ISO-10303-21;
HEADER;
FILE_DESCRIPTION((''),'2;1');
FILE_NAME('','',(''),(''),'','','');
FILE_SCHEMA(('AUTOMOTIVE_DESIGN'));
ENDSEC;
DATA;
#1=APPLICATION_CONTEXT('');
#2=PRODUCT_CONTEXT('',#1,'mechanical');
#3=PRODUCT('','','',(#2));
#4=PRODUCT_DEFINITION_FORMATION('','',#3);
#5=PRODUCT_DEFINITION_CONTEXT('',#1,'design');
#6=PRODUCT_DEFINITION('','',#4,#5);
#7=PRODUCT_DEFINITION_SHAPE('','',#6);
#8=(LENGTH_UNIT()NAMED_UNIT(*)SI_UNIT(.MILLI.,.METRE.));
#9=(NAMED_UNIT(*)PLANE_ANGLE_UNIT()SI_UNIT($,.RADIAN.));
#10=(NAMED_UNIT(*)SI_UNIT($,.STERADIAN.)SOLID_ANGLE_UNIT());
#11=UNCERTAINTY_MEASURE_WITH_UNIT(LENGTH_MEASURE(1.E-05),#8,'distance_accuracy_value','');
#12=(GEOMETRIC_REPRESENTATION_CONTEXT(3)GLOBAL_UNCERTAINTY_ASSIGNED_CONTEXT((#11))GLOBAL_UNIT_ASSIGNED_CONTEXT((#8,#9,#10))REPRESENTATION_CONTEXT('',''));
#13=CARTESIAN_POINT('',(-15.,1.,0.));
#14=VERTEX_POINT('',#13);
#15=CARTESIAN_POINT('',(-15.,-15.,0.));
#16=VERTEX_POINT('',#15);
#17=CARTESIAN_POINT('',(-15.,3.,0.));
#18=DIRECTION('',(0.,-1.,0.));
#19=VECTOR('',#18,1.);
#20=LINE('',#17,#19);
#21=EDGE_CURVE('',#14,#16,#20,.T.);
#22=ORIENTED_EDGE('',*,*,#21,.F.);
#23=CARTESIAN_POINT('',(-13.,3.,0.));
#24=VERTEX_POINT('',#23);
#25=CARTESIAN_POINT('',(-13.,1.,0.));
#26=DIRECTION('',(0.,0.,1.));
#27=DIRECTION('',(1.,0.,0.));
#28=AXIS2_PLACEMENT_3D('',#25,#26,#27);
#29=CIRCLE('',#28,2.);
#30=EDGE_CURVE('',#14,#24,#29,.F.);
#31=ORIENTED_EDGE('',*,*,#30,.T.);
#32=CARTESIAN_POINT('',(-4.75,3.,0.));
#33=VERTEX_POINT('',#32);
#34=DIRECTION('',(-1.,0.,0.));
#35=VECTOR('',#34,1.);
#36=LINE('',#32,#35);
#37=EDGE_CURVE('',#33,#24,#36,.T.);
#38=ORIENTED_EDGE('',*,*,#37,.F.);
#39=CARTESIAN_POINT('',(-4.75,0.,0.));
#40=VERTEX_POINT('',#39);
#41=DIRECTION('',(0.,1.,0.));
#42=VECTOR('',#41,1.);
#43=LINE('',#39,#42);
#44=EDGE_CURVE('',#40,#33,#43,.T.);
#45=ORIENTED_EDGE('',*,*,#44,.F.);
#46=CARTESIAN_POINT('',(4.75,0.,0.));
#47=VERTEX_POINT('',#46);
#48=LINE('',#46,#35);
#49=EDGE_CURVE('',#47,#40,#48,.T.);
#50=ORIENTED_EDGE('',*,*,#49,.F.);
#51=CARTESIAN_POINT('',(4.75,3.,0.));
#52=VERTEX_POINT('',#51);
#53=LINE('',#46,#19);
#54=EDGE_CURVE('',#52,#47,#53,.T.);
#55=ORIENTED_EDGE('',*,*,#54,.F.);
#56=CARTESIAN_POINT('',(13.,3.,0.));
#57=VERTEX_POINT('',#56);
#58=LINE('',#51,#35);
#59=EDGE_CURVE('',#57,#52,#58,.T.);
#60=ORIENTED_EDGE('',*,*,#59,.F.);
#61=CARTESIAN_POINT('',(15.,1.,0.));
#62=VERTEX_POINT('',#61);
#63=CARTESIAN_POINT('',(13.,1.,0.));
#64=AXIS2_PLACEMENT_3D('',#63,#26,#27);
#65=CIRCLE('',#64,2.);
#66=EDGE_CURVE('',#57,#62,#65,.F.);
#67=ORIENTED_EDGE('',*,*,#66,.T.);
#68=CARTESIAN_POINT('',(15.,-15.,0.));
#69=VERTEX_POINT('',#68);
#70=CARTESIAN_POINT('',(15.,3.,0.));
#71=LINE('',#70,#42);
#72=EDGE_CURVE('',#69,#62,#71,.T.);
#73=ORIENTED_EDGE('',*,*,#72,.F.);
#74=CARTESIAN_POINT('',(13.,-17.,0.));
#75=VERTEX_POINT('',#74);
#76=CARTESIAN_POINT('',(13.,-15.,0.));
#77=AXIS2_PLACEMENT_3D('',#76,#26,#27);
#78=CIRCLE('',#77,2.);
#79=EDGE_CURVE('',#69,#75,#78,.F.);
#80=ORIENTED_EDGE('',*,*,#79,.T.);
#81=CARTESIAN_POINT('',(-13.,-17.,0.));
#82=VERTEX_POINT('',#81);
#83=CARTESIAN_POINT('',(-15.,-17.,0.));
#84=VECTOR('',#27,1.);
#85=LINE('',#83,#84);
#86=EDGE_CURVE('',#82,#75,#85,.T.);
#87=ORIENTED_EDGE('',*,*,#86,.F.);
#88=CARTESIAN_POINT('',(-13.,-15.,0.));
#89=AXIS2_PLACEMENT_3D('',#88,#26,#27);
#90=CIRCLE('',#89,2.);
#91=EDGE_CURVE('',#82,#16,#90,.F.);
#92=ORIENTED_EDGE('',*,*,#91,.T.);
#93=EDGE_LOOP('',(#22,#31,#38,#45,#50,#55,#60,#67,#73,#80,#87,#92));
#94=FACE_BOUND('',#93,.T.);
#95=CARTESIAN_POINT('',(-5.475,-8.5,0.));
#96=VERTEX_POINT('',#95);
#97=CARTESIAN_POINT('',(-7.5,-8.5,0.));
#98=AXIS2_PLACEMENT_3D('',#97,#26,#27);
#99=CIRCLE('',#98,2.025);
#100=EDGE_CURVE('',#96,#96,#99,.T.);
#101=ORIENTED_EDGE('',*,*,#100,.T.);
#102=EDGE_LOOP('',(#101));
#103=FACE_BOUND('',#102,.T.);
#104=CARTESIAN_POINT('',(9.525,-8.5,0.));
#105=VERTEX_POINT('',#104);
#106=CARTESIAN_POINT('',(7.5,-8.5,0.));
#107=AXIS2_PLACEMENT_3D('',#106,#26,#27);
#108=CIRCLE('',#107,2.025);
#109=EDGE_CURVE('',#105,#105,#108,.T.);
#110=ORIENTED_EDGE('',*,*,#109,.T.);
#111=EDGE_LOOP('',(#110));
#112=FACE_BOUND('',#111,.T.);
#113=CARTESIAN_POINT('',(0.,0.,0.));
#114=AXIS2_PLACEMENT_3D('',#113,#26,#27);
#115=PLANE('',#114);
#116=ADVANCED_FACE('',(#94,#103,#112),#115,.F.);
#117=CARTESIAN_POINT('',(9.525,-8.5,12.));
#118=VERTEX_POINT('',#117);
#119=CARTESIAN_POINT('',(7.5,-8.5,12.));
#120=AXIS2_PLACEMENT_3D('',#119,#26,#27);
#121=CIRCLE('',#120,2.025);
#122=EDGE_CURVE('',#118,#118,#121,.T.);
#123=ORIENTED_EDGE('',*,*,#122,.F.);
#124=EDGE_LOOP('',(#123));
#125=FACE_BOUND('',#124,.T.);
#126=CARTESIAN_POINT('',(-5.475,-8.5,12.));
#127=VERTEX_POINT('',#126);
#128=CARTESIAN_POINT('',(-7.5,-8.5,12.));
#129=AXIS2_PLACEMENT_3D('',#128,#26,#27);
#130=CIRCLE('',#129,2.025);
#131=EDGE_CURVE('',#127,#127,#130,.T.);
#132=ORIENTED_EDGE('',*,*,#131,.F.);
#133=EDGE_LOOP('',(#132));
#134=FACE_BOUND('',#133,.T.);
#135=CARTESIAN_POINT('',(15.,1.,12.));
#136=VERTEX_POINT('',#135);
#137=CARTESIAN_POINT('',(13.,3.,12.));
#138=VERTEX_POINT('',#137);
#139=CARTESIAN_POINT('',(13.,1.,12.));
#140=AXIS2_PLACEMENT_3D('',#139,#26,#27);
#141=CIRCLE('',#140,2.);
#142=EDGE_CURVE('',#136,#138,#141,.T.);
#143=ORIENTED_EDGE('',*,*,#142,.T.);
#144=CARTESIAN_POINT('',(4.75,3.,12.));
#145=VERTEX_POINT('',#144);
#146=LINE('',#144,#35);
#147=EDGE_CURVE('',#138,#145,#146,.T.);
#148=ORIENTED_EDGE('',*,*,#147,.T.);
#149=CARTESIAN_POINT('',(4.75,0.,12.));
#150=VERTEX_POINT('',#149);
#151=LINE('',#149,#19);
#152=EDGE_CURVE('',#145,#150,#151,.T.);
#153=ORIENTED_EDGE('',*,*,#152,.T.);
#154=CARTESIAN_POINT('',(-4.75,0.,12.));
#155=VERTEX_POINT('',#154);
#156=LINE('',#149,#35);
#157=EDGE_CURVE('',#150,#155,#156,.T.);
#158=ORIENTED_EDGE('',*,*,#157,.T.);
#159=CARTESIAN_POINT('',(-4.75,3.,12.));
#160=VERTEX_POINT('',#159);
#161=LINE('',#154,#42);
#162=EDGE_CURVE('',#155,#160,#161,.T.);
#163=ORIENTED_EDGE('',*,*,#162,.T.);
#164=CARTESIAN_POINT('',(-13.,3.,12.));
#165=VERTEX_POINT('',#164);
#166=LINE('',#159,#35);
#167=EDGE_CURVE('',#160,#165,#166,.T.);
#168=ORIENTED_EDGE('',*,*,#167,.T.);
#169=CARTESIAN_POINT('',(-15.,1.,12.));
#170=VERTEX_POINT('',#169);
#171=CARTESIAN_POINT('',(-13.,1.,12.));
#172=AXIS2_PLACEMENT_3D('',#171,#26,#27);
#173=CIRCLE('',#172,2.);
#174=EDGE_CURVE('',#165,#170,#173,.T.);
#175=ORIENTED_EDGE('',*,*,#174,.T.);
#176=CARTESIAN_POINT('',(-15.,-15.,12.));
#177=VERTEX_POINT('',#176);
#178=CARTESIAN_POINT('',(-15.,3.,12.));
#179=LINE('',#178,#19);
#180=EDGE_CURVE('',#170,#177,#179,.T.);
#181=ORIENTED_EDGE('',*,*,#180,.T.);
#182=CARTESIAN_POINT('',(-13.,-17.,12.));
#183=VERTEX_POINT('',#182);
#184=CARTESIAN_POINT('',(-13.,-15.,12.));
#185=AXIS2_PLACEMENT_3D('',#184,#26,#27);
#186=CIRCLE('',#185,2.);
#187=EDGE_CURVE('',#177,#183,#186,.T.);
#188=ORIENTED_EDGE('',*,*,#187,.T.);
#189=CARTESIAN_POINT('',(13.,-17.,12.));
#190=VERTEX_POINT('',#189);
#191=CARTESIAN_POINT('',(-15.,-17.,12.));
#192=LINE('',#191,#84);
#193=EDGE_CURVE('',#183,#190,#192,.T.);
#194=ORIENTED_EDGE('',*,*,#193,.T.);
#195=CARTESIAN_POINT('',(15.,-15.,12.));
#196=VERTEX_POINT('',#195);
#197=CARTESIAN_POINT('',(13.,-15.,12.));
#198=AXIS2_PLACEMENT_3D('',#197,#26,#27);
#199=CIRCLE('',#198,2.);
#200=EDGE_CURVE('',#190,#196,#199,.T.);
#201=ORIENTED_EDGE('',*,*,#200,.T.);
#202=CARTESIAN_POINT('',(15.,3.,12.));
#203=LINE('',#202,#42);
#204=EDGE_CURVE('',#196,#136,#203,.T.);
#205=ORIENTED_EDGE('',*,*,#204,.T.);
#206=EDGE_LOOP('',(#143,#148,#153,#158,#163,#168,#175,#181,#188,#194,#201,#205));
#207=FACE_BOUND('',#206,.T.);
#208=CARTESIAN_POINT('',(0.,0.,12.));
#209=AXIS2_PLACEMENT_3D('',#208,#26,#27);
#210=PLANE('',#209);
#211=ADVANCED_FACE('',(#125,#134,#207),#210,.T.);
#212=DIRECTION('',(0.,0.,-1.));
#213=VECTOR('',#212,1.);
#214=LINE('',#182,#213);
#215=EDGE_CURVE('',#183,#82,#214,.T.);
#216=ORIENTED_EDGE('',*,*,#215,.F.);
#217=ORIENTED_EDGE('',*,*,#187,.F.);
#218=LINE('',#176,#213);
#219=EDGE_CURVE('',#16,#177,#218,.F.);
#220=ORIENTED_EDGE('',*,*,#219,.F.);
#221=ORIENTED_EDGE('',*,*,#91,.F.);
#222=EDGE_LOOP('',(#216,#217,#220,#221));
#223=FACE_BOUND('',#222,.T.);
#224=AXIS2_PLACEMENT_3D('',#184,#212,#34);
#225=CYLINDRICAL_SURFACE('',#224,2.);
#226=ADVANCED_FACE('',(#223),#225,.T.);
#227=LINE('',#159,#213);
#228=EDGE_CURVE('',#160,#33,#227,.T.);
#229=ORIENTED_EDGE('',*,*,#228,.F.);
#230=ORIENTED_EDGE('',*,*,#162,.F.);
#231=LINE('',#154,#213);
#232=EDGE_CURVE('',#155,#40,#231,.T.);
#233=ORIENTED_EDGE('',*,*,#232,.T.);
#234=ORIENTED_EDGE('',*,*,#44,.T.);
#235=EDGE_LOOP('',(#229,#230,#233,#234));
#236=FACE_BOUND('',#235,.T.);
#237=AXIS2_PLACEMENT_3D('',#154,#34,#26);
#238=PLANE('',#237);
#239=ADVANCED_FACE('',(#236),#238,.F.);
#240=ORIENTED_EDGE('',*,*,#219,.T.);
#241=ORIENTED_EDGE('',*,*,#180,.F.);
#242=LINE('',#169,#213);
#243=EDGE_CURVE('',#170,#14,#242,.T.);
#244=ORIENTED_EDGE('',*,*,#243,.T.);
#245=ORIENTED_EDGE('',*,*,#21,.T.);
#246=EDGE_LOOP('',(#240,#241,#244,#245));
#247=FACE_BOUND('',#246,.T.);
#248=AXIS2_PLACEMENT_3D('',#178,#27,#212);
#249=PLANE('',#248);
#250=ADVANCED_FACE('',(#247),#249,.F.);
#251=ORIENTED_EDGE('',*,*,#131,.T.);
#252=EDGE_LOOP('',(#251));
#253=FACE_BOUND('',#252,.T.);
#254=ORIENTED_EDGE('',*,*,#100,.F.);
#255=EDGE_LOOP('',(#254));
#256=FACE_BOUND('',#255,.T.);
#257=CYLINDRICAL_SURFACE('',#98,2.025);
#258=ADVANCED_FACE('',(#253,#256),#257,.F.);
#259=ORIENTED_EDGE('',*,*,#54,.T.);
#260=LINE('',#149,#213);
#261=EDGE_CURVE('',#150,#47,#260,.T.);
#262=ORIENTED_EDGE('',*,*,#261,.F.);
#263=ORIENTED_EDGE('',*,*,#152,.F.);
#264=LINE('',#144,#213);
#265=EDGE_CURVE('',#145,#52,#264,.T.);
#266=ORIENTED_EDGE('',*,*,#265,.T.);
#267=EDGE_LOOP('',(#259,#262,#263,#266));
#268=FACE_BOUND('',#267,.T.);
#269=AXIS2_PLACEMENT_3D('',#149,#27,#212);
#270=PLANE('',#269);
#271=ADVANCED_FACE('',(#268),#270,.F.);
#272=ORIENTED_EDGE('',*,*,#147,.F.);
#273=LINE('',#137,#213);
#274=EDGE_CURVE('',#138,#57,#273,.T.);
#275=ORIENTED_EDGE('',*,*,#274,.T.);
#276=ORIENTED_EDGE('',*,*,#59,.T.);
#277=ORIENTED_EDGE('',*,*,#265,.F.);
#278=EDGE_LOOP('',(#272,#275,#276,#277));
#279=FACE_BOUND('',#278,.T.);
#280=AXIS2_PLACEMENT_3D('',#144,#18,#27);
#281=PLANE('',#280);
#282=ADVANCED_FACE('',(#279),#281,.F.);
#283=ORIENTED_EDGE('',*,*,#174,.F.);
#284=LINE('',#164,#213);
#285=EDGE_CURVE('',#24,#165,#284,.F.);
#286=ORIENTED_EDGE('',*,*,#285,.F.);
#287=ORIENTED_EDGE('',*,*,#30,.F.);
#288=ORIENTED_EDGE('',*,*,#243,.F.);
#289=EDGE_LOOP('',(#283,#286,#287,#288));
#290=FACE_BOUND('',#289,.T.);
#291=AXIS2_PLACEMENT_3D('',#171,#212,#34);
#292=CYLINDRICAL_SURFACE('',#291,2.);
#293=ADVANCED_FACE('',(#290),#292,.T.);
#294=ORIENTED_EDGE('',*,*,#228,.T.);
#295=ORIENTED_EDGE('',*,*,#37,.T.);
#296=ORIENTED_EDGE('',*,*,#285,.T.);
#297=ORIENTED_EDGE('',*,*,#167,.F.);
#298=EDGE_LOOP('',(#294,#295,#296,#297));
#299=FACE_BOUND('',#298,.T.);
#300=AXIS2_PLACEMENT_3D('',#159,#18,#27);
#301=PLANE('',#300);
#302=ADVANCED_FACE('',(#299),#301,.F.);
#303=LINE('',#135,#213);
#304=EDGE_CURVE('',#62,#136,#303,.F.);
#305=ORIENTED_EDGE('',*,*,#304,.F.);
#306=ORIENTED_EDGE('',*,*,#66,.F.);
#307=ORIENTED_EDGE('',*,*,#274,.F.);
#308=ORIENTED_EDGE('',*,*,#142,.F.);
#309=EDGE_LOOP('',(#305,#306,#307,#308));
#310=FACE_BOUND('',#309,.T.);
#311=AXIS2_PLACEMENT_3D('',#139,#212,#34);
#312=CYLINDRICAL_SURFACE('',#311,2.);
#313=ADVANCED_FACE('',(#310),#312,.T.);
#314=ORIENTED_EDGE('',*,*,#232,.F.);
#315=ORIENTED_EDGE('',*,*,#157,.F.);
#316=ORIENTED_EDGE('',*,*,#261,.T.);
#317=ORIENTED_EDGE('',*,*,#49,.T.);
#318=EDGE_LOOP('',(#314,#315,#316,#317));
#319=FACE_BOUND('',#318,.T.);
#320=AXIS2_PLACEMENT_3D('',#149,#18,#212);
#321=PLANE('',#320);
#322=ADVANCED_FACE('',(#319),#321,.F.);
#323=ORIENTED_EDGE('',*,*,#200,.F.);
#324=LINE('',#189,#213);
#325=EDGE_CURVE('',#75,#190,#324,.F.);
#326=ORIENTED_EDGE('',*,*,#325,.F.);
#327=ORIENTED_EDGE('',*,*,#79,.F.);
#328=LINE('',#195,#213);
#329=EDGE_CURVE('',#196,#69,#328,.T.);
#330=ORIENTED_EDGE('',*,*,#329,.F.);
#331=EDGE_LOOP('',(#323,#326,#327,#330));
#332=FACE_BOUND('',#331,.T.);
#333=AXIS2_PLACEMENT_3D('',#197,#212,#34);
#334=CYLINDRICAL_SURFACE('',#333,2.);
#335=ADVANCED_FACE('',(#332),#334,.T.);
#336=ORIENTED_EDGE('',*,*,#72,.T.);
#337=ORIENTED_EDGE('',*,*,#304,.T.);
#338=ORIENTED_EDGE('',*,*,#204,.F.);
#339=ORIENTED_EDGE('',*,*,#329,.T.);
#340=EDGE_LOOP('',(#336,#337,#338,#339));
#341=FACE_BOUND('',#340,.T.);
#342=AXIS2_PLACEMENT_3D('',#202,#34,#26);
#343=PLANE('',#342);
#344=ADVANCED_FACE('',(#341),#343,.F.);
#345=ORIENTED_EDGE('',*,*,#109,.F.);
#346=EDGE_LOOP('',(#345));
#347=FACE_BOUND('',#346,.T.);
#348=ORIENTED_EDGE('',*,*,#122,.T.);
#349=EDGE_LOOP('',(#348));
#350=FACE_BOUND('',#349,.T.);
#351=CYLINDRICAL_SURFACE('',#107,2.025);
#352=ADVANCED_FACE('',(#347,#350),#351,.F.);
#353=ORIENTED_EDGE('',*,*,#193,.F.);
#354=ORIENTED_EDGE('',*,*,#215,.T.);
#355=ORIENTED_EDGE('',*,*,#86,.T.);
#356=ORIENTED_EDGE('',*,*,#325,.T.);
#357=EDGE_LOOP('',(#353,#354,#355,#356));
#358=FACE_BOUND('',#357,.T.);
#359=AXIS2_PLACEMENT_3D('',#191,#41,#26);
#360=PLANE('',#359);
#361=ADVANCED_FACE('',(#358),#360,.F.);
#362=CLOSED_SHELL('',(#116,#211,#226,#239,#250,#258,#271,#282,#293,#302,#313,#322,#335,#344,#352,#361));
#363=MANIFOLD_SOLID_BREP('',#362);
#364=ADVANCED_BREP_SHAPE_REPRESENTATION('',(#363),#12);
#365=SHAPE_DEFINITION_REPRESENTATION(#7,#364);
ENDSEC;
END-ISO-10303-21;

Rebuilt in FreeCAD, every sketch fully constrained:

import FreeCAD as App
import Part
import Sketcher
from FreeCAD import Vector


def edges_at(feature, points):
    """Names of the edges that pass closest to the given points."""
    edges = feature.Shape.Edges
    near = lambda p: min(range(len(edges)), key=lambda i: edges[i].distToShape(Part.Vertex(*p))[0])
    return sorted({f"Edge{near(p) + 1}" for p in points})

doc = App.newDocument("Part")
body = doc.addObject("PartDesign::Body", "Body")

# Sketch on XY plane
sketch1 = doc.addObject("Sketcher::SketchObject", "Sketch")
body.addObject(sketch1)
sketch1.AttachmentSupport = (doc.XY_Plane, [""])
sketch1.MapMode = "FlatFace"
sketch1.addGeometry(Part.LineSegment(Vector(4.75, 0, 0), Vector(-4.75, 0, 0)), False)
sketch1.addGeometry(Part.LineSegment(Vector(-4.75, 0, 0), Vector(-4.75, 3, 0)), False)
sketch1.addGeometry(Part.LineSegment(Vector(-4.75, 3, 0), Vector(-15, 3, 0)), False)
sketch1.addGeometry(Part.LineSegment(Vector(-15, 3, 0), Vector(-15, -17, 0)), False)
sketch1.addGeometry(Part.LineSegment(Vector(-15, -17, 0), Vector(15, -17, 0)), False)
sketch1.addGeometry(Part.LineSegment(Vector(15, -17, 0), Vector(15, 3, 0)), False)
sketch1.addGeometry(Part.LineSegment(Vector(15, 3, 0), Vector(4.75, 3, 0)), False)
sketch1.addGeometry(Part.LineSegment(Vector(4.75, 3, 0), Vector(4.75, 0, 0)), False)
sketch1.addConstraint(Sketcher.Constraint("Coincident", 0, 2, 1, 1))
sketch1.addConstraint(Sketcher.Constraint("Coincident", 1, 2, 2, 1))
sketch1.addConstraint(Sketcher.Constraint("Coincident", 2, 2, 3, 1))
sketch1.addConstraint(Sketcher.Constraint("Coincident", 3, 2, 4, 1))
sketch1.addConstraint(Sketcher.Constraint("Coincident", 4, 2, 5, 1))
sketch1.addConstraint(Sketcher.Constraint("Coincident", 5, 2, 6, 1))
sketch1.addConstraint(Sketcher.Constraint("Coincident", 6, 2, 7, 1))
sketch1.addConstraint(Sketcher.Constraint("Coincident", 7, 2, 0, 1))
sketch1.addConstraint(Sketcher.Constraint("Horizontal", 0))
sketch1.addConstraint(Sketcher.Constraint("Vertical", 1))
sketch1.addConstraint(Sketcher.Constraint("Horizontal", 2))
sketch1.addConstraint(Sketcher.Constraint("Vertical", 3))
sketch1.addConstraint(Sketcher.Constraint("Horizontal", 4))
sketch1.addConstraint(Sketcher.Constraint("Vertical", 5))
sketch1.addConstraint(Sketcher.Constraint("Horizontal", 6))
sketch1.addConstraint(Sketcher.Constraint("Vertical", 7))
sketch1.addConstraint(Sketcher.Constraint("Symmetric", 0, 2, 7, 2, -1, 1))
sketch1.addConstraint(Sketcher.Constraint("Symmetric", 2, 2, 5, 2, -2))
sketch1.addConstraint(Sketcher.Constraint("DistanceX", 4, 1, 4, 2, 30.0))
sketch1.addConstraint(Sketcher.Constraint("DistanceY", 1, 1, 1, 2, 3.0))
sketch1.addConstraint(Sketcher.Constraint("DistanceY", 3, 2, 3, 1, 20.0))
sketch1.addConstraint(Sketcher.Constraint("DistanceX", 0, 2, 0, 1, 9.5))
pad1 = doc.addObject("PartDesign::Pad", "Pad")
body.addObject(pad1)
pad1.Profile = sketch1
pad1.Length = 12
doc.recompute()

fillet = doc.addObject("PartDesign::Fillet", "Fillet")
body.addObject(fillet)
fillet.Base = (pad1, edges_at(pad1, [
    (15, 3, 6),
    (15, -17, 6),
    (-15, -17, 6),
    (-15, 3, 6),
]))
fillet.Radius = 2

# Sketch on XY plane
sketch2 = doc.addObject("Sketcher::SketchObject", "Sketch001")
body.addObject(sketch2)
sketch2.AttachmentSupport = (doc.XY_Plane, [""])
sketch2.MapMode = "FlatFace"
sketch2.AttachmentOffset = App.Placement(Vector(0, 0, 12), App.Rotation())
sketch2.addGeometry(Part.Circle(Vector(-7.5, -8.5, 0), Vector(0, 0, 1), 2.025), False)
sketch2.addGeometry(Part.Circle(Vector(7.5, -8.5, 0), Vector(0, 0, 1), 2.025), False)
sketch2.addConstraint(Sketcher.Constraint("Equal", 0, 1))
sketch2.addConstraint(Sketcher.Constraint("Symmetric", 0, 3, 1, 3, -2))
sketch2.addConstraint(Sketcher.Constraint("Diameter", 0, 4.05))
sketch2.addConstraint(Sketcher.Constraint("DistanceX", 0, 3, 1, 3, 15.0))
sketch2.addConstraint(Sketcher.Constraint("DistanceY", 0, 3, -1, 1, 8.5))
pocket1 = doc.addObject("PartDesign::Pocket", "Pocket")
body.addObject(pocket1)
pocket1.Profile = sketch2
pocket1.Type = "ThroughAll"
pocket1.Midplane = True

doc.recompute()
